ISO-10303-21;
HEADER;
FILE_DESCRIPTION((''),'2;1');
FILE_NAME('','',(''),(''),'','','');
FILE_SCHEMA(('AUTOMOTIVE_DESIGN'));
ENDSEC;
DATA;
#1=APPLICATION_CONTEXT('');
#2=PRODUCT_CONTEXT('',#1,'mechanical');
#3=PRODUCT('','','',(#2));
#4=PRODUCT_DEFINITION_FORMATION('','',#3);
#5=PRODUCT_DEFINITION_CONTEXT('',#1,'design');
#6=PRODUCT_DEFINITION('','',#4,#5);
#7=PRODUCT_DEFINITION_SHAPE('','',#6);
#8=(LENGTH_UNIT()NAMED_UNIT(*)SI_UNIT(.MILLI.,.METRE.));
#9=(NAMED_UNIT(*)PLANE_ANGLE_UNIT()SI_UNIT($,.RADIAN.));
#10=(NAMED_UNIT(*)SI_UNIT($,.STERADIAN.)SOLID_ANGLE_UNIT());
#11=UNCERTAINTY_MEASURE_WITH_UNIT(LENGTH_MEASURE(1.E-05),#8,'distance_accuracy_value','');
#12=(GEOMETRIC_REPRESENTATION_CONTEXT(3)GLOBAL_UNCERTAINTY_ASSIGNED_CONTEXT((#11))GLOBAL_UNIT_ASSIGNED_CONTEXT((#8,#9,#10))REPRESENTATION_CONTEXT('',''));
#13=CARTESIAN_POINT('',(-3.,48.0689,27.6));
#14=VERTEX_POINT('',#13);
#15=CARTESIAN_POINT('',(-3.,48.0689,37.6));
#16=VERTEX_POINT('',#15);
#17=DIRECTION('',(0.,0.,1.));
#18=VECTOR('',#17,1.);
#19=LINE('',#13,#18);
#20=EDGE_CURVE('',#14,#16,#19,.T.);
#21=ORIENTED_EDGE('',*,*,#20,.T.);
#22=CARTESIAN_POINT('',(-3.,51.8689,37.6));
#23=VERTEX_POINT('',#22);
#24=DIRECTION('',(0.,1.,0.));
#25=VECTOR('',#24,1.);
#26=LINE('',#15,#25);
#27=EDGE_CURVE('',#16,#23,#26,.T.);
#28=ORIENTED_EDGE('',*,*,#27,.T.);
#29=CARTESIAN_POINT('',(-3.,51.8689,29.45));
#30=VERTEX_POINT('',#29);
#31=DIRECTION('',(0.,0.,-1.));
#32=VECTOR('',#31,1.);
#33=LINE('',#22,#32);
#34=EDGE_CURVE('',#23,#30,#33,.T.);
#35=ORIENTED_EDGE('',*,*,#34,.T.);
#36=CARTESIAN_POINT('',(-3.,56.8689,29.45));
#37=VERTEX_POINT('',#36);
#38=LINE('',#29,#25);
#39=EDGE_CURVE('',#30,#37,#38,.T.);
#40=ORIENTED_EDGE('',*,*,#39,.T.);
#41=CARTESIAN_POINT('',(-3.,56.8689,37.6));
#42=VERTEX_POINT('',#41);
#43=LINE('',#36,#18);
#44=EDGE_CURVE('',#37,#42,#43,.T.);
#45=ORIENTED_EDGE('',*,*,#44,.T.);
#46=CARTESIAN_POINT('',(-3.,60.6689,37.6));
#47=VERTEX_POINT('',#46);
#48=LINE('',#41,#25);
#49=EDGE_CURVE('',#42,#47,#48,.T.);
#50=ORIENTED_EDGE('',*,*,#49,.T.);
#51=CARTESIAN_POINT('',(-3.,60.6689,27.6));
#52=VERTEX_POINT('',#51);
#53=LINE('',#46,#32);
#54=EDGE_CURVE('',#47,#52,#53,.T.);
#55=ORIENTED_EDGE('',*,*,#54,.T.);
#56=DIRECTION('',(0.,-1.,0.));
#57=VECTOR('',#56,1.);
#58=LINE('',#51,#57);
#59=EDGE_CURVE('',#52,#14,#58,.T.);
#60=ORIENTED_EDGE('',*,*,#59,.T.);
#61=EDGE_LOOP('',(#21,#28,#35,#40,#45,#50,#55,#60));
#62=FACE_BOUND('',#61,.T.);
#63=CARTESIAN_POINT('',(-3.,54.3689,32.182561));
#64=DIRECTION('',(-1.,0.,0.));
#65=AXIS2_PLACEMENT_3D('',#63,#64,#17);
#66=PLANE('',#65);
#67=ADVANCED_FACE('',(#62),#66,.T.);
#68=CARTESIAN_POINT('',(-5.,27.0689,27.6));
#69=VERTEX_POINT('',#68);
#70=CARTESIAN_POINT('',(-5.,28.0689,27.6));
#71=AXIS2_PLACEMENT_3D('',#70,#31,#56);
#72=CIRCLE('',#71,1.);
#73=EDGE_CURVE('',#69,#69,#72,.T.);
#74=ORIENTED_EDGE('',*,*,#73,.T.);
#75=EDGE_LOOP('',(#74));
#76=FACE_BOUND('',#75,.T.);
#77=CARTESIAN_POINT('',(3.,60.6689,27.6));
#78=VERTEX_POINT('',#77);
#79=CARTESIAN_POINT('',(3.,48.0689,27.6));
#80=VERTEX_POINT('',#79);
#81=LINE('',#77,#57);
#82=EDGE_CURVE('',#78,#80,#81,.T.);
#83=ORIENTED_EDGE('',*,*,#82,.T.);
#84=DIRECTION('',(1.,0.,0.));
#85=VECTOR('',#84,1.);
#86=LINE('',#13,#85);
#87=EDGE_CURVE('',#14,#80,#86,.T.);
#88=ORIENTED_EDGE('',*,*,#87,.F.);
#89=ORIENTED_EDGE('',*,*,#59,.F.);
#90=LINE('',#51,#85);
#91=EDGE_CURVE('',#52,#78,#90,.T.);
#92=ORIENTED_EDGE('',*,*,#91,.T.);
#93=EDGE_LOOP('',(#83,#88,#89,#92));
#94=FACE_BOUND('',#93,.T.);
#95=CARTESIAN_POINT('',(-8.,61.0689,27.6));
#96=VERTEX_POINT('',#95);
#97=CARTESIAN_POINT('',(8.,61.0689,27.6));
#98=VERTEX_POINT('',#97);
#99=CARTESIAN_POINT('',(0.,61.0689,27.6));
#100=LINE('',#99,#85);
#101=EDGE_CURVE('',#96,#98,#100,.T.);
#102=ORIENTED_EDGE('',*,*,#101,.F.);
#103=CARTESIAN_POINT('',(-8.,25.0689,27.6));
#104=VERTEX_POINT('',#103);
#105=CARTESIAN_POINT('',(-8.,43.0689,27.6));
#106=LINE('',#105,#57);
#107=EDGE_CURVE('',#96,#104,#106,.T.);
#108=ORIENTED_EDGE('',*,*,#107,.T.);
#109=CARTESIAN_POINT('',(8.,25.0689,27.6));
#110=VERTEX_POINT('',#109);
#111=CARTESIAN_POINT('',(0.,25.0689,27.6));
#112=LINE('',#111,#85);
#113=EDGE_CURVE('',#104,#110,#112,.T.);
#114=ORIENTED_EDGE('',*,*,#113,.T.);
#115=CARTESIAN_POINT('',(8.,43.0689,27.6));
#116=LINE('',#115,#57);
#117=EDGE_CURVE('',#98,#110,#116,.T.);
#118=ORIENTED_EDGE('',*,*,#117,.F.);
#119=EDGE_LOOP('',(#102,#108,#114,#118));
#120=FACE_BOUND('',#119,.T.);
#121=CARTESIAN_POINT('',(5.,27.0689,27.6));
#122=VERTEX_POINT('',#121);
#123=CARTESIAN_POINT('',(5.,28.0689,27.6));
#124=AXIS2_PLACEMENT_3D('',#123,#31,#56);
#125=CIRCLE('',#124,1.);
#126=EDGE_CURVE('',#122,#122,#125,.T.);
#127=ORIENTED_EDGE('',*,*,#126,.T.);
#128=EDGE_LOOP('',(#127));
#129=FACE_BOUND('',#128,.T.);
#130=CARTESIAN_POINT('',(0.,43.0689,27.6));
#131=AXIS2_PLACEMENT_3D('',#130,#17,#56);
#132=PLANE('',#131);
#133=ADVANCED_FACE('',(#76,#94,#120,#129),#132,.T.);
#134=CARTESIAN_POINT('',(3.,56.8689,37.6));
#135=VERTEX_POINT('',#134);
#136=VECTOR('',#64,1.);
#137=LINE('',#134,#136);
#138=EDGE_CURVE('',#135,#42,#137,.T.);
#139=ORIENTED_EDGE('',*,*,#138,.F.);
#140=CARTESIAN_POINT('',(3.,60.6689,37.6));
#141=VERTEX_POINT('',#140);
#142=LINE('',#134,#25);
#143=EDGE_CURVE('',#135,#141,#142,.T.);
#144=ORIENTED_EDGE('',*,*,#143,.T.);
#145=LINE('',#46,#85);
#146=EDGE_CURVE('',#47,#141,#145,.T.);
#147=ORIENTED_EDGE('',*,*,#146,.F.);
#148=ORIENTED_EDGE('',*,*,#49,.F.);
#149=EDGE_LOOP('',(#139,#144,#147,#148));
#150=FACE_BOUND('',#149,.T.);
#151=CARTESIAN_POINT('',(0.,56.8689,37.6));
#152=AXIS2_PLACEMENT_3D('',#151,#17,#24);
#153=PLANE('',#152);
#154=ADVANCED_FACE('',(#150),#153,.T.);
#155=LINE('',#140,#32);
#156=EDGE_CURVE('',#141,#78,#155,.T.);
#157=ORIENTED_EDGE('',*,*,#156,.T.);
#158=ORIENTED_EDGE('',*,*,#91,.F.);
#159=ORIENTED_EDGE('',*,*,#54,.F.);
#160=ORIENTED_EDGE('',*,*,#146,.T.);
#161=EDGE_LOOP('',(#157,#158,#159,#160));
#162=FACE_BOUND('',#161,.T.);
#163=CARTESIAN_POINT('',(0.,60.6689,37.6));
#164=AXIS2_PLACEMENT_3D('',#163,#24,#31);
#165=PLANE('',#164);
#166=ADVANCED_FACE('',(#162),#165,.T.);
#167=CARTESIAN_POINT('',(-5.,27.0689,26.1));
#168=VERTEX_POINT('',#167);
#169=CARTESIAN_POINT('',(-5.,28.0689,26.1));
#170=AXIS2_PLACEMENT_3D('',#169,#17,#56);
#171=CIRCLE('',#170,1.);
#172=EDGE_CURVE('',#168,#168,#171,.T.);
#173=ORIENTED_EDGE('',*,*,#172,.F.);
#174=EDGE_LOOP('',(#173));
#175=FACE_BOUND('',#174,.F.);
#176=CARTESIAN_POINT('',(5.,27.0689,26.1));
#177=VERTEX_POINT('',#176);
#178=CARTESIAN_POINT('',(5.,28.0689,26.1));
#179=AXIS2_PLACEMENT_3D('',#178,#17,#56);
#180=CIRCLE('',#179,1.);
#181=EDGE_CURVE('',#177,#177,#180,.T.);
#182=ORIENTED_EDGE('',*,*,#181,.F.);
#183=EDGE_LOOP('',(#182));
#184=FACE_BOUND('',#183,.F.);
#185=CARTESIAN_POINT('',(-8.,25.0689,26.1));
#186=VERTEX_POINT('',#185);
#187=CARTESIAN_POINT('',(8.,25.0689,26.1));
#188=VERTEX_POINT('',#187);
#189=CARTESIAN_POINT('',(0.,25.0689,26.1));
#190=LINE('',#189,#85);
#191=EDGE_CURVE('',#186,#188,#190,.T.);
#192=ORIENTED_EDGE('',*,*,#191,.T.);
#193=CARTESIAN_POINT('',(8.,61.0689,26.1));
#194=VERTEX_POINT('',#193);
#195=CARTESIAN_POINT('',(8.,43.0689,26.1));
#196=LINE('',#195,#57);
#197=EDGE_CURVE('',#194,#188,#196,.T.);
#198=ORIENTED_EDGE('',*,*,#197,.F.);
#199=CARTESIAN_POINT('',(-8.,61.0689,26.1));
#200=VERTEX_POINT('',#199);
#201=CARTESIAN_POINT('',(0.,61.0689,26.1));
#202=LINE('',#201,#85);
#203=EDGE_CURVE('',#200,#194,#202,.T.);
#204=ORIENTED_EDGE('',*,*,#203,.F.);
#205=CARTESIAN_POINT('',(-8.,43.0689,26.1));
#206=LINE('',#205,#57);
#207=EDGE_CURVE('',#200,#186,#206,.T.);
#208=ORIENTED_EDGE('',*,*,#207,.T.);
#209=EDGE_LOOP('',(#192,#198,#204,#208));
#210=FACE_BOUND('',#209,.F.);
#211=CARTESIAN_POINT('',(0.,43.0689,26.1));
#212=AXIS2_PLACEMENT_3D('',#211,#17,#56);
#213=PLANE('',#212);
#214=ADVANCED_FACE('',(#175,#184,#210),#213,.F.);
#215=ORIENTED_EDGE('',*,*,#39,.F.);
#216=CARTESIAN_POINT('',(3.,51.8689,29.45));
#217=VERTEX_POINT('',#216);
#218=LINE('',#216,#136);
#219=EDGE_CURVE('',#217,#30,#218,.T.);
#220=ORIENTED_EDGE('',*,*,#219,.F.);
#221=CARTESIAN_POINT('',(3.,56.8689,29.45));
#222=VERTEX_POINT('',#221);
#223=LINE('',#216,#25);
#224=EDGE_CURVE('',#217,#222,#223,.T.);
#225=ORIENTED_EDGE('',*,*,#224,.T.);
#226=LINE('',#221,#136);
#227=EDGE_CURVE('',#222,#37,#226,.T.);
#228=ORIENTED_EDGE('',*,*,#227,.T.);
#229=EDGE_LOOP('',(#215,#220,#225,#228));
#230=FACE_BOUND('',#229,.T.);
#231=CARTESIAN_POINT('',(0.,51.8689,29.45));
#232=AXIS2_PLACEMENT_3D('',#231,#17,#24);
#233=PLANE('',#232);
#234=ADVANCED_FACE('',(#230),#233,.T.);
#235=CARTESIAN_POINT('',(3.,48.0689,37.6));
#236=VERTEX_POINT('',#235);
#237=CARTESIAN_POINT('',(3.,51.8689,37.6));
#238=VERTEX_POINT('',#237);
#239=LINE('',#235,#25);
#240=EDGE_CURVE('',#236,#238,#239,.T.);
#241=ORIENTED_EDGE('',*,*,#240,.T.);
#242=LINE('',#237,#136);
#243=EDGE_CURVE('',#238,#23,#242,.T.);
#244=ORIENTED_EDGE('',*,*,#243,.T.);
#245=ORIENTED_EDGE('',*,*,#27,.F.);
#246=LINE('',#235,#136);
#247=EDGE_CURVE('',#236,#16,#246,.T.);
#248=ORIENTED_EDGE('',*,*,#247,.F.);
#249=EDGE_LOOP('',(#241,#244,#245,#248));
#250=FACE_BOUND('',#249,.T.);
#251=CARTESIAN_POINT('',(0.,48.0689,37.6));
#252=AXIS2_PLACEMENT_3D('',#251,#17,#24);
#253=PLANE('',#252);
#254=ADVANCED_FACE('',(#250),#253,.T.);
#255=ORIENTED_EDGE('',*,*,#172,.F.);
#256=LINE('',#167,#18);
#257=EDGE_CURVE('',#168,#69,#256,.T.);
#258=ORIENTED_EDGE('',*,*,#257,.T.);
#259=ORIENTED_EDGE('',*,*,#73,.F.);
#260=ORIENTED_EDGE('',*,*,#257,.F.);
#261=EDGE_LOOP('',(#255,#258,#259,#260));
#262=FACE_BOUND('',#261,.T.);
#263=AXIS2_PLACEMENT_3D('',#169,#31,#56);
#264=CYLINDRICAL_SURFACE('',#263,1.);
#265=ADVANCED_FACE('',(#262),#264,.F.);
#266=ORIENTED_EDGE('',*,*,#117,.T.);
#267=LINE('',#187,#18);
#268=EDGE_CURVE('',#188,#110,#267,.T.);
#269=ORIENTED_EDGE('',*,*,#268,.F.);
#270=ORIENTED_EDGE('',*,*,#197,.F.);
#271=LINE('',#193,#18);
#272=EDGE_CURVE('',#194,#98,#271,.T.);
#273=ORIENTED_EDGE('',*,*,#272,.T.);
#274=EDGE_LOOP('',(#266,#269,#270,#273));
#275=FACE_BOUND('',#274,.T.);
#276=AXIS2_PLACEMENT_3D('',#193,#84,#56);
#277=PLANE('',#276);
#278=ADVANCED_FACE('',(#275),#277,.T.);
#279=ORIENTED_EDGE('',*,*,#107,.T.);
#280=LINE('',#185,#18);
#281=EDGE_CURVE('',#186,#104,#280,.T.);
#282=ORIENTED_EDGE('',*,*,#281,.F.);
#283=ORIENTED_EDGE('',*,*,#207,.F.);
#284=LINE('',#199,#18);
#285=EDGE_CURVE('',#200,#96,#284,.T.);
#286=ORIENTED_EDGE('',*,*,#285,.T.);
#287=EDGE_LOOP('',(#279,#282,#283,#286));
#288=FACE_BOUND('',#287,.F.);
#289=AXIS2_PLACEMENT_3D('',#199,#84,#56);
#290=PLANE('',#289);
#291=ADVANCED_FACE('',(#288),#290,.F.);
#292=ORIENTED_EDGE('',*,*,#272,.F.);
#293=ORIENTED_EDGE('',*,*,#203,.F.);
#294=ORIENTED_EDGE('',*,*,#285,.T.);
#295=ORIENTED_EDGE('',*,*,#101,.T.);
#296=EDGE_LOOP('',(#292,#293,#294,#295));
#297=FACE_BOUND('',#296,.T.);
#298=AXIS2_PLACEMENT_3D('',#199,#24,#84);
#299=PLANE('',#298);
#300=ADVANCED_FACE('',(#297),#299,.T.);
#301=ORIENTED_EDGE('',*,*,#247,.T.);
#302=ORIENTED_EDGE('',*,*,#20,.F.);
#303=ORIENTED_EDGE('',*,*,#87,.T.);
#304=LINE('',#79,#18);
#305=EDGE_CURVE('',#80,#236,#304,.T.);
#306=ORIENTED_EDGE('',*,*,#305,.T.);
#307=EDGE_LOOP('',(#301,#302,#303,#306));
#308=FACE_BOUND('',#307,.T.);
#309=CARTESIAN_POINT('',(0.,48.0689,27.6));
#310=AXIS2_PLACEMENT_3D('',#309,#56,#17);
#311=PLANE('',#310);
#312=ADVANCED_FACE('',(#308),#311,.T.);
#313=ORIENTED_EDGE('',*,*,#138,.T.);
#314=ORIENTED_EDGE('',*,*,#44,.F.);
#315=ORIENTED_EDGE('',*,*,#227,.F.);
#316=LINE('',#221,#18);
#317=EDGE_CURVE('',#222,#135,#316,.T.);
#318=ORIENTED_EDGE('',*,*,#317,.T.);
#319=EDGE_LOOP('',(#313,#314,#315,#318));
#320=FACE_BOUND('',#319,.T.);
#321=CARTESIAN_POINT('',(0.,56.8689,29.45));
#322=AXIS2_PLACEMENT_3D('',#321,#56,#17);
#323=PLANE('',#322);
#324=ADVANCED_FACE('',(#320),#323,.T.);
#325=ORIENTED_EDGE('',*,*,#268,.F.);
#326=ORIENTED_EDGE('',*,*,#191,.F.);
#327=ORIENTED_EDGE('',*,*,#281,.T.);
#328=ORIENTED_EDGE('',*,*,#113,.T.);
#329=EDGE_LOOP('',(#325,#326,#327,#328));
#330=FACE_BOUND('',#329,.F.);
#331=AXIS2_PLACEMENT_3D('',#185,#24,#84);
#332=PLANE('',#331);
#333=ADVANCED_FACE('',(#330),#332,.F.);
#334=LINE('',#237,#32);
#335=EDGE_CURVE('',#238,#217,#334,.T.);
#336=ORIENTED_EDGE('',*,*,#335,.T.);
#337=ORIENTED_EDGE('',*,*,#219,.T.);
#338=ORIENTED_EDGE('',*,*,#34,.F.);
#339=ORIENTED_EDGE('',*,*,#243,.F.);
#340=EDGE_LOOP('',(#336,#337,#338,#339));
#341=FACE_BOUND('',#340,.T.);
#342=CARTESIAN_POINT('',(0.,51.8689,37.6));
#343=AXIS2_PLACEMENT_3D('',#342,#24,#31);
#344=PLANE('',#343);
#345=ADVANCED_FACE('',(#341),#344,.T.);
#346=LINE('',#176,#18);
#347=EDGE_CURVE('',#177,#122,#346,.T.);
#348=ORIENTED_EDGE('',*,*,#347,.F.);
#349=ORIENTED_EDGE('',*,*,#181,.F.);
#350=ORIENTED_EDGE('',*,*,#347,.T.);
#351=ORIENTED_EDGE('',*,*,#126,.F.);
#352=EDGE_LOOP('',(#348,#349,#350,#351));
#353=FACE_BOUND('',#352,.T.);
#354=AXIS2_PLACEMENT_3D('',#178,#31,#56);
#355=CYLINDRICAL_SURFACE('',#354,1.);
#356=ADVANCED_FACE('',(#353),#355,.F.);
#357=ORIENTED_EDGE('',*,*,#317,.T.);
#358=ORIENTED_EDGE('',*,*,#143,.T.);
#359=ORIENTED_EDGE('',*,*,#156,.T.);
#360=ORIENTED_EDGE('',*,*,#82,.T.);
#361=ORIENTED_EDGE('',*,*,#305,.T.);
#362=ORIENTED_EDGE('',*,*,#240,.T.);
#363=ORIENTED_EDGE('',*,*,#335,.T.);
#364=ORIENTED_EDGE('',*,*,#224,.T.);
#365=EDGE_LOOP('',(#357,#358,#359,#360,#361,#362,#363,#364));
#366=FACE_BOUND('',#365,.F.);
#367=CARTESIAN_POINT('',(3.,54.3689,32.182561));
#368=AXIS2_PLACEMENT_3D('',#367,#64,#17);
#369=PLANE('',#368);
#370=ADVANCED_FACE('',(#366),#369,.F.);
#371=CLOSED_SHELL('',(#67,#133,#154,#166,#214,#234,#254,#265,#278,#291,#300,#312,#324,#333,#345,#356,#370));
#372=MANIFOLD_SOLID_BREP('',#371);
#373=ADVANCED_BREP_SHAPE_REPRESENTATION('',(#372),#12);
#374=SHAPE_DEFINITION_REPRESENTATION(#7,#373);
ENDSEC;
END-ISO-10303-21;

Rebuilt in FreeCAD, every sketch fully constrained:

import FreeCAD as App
import Part
import Sketcher
from FreeCAD import Vector
Q = App.Units.Quantity

doc = App.newDocument("Part")
body = doc.addObject("PartDesign::Body", "Body")

sketch1 = body.newObject("Sketcher::SketchObject", "Sketch")
sketch1.AttachmentSupport = (doc.getObject("XY_Plane"), [""])
sketch1.MapMode = "FlatFace"
sketch1.addGeometry(Part.Circle(Vector(33, 3, 0), Vector(0, 0, 1), 1), False)
sketch1.addConstraint(Sketcher.Constraint("Diameter", 0, Q("2 mm")))
sketch1.addConstraint(Sketcher.Constraint("DistanceX", -1, 1, 0, 3, Q("33 mm")))
sketch1.addConstraint(Sketcher.Constraint("DistanceY", -1, 1, 0, 3, Q("3 mm")))
pad1 = body.newObject("PartDesign::Pad", "Pad")
pad1.Profile = sketch1
pad1.Length = 5
body2 = doc.addObject("PartDesign::Body", "Body001")
body2.AllowCompound = True

sketch2 = body2.newObject("Sketcher::SketchObject", "Sketch001")
sketch2.AttachmentSupport = (doc.getObject("XY_Plane001"), [""])
sketch2.MapMode = "FlatFace"
sketch2.addGeometry(Part.Circle(Vector(33, 13, 0), Vector(0, 0, 1), 1), False)
sketch2.addConstraint(Sketcher.Constraint("Diameter", 0, Q("2 mm")))
sketch2.addConstraint(Sketcher.Constraint("DistanceX", -1, 1, 0, 3, Q("33 mm")))
sketch2.addConstraint(Sketcher.Constraint("DistanceY", -1, 1, 0, 3, Q("13 mm")))
pad2 = body2.newObject("PartDesign::Pad", "Pad001")
pad2.Profile = sketch2
pad2.Length = 5
doc.recompute()

boolean = body2.newObject("PartDesign::Boolean", "Boolean")
boolean.Type = "Fuse"
boolean.addObjects([body])
body3 = doc.addObject("PartDesign::Body", "Body002")

sketch3 = body3.newObject("Sketcher::SketchObject", "Sketch002")
sketch3.AttachmentSupport = (doc.getObject("XY_Plane002"), [""])
sketch3.MapMode = "FlatFace"
sketch3.addGeometry(Part.LineSegment(Vector(0, 16, 0), Vector(0, 0, 0)), False)
sketch3.addGeometry(Part.LineSegment(Vector(0, 0, 0), Vector(36, 0, 0)), False)
sketch3.addGeometry(Part.LineSegment(Vector(36, 0, 0), Vector(36, 16, 0)), False)
sketch3.addGeometry(Part.LineSegment(Vector(36, 16, 0), Vector(0, 16, 0)), False)
sketch3.addConstraint(Sketcher.Constraint("Coincident", 0, 2, 1, 1))
sketch3.addConstraint(Sketcher.Constraint("Coincident", 1, 2, 2, 1))
sketch3.addConstraint(Sketcher.Constraint("Coincident", 2, 2, 3, 1))
sketch3.addConstraint(Sketcher.Constraint("Coincident", 3, 2, 0, 1))
sketch3.addConstraint(Sketcher.Constraint("Vertical", 0))
sketch3.addConstraint(Sketcher.Constraint("Horizontal", 1))
sketch3.addConstraint(Sketcher.Constraint("Vertical", 2))
sketch3.addConstraint(Sketcher.Constraint("Horizontal", 3))
sketch3.addConstraint(Sketcher.Constraint("Coincident", 0, 2, -1, 1))
sketch3.addConstraint(Sketcher.Constraint("DistanceX", 1, 1, 1, 2, Q("36 mm")))
sketch3.addConstraint(Sketcher.Constraint("DistanceY", 0, 2, 0, 1, Q("16 mm")))
pad3 = body3.newObject("PartDesign::Pad", "Pad002")
pad3.Profile = sketch3
pad3.Length = 1.5
doc.recompute()

boolean2 = body3.newObject("PartDesign::Boolean", "Boolean001")
boolean2.Type = "Cut"
boolean2.addObjects([body2])
body4 = doc.addObject("PartDesign::Body", "Body003")

sketch4 = body4.newObject("Sketcher::SketchObject", "Sketch003")
sketch4.AttachmentSupport = (doc.getObject("XZ_Plane003"), [""])
sketch4.MapMode = "FlatFace"
sketch4.AttachmentOffset = App.Placement(Vector(0, 0, -8), App.Rotation())
sketch4.addGeometry(Part.LineSegment(Vector(13, 1.5, 0), Vector(13, 11.5, 0)), False)
sketch4.addGeometry(Part.LineSegment(Vector(13, 11.5, 0), Vector(9.2, 11.5, 0)), False)
sketch4.addGeometry(Part.LineSegment(Vector(9.2, 11.5, 0), Vector(9.2, 3.4, 0)), False)
sketch4.addGeometry(Part.LineSegment(Vector(9.2, 3.4, 0), Vector(4.2, 3.4, 0)), False)
sketch4.addGeometry(Part.LineSegment(Vector(4.2, 3.4, 0), Vector(4.2, 11.5, 0)), False)
sketch4.addGeometry(Part.LineSegment(Vector(4.2, 11.5, 0), Vector(0.4, 11.5, 0)), False)
sketch4.addGeometry(Part.LineSegment(Vector(0.4, 11.5, 0), Vector(0.4, 1.5, 0)), False)
sketch4.addGeometry(Part.LineSegment(Vector(0.4, 1.5, 0), Vector(13, 1.5, 0)), False)
sketch4.addConstraint(Sketcher.Constraint("Coincident", 0, 2, 1, 1))
sketch4.addConstraint(Sketcher.Constraint("Coincident", 1, 2, 2, 1))
sketch4.addConstraint(Sketcher.Constraint("Coincident", 2, 2, 3, 1))
sketch4.addConstraint(Sketcher.Constraint("Coincident", 3, 2, 4, 1))
sketch4.addConstraint(Sketcher.Constraint("Coincident", 4, 2, 5, 1))
sketch4.addConstraint(Sketcher.Constraint("Coincident", 5, 2, 6, 1))
sketch4.addConstraint(Sketcher.Constraint("Coincident", 6, 2, 7, 1))
sketch4.addConstraint(Sketcher.Constraint("Coincident", 7, 2, 0, 1))
sketch4.addConstraint(Sketcher.Constraint("Vertical", 0))
sketch4.addConstraint(Sketcher.Constraint("Horizontal", 1))
sketch4.addConstraint(Sketcher.Constraint("Vertical", 2))
sketch4.addConstraint(Sketcher.Constraint("Horizontal", 3))
sketch4.addConstraint(Sketcher.Constraint("Vertical", 4))
sketch4.addConstraint(Sketcher.Constraint("Horizontal", 5))
sketch4.addConstraint(Sketcher.Constraint("Vertical", 6))
sketch4.addConstraint(Sketcher.Constraint("Horizontal", 7))
sketch4.addConstraint(Sketcher.Constraint("Horizontal", 1, 2, 4, 2))
sketch4.addConstraint(Sketcher.Constraint("Equal", 1, 5))
sketch4.addConstraint(Sketcher.Constraint("DistanceX", 3, 2, 3, 1, Q("5 mm")))
sketch4.addConstraint(Sketcher.Constraint("DistanceY", 0, 1, 0, 2, Q("10 mm")))
sketch4.addConstraint(Sketcher.Constraint("DistanceX", 1, 2, 1, 1, Q("3.8 mm")))
sketch4.addConstraint(Sketcher.Constraint("DistanceX", -1, 1, 0, 2, Q("13 mm")))
sketch4.addConstraint(Sketcher.Constraint("DistanceY", 2, 2, 2, 1, Q("8.15 mm")))
sketch4.addConstraint(Sketcher.Constraint("DistanceY", -1, 1, 0, 2, Q("11.5 mm")))
pad4 = body4.newObject("PartDesign::Pad", "Pad003")
pad4.Profile = sketch4
pad4.Length = 6
pad4.Midplane = True
doc.recompute()

boolean3 = body4.newObject("PartDesign::Boolean", "Boolean002")
boolean3.Type = "Fuse"
boolean3.addObjects([body3])
body5 = doc.addObject("PartDesign::Body", "Body004")
doc.recompute()

body4.Placement = App.Placement(Vector(-8, 61.0689, 26.1), App.Rotation(Vector(0, 0, 1), 270))
boolean4 = body5.newObject("PartDesign::Boolean", "Boolean003")
boolean4.Type = "Fuse"
boolean4.addObjects([body4])

doc.recompute()
